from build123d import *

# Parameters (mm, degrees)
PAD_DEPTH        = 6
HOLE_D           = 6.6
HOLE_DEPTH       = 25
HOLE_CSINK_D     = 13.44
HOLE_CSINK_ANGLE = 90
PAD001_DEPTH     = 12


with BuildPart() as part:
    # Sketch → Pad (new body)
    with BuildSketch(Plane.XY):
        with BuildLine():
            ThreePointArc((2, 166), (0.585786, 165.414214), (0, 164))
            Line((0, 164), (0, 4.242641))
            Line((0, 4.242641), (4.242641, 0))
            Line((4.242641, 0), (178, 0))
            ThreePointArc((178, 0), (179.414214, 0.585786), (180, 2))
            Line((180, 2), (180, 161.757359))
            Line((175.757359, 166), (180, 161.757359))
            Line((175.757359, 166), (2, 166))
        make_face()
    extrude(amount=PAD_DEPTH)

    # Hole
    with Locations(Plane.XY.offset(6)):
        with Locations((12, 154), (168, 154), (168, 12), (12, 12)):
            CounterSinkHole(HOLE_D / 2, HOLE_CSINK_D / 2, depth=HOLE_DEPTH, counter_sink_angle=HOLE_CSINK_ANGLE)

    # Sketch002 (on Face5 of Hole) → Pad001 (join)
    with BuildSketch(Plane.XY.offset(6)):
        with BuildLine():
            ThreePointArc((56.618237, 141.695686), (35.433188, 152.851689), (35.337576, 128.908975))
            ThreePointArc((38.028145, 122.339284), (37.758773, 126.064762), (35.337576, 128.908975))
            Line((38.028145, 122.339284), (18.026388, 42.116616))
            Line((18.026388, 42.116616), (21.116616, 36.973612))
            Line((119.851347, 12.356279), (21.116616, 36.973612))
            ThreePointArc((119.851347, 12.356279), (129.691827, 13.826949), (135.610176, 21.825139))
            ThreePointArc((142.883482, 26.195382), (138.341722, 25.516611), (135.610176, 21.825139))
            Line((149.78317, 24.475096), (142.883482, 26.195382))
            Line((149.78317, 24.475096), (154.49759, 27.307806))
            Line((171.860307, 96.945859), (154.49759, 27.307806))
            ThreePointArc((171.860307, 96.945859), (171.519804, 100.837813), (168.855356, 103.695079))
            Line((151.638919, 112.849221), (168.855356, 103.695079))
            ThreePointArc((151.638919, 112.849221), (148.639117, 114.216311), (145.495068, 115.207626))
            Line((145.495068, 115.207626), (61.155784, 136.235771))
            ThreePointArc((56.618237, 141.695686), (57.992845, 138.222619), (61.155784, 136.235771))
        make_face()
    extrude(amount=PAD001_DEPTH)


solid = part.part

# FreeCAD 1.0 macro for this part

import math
import FreeCAD as App
import Part
import Sketcher

V = App.Vector
Q = App.Units.Quantity

doc = App.newDocument("Part")
body = doc.addObject("PartDesign::Body", "Body")

# Sketch on XY plane
sketch1 = doc.addObject("Sketcher::SketchObject", "Sketch")
body.addObject(sketch1)
sketch1.AttachmentSupport = (doc.XY_Plane, [""])
sketch1.MapMode = "FlatFace"
sketch1.addGeometry([
    Part.ArcOfCircle(Part.Circle(V(1.999999, 164.000001, 0), V(0, 0, 1), 1.999999), math.radians(89.999957), math.radians(180.000043)),  # 0
    Part.LineSegment(V(0, 164, 0), V(0, 4.242641, 0)),  # 1
    Part.LineSegment(V(0, 4.242641, 0), V(4.242641, 0, 0)),  # 2
    Part.LineSegment(V(4.242641, 0, 0), V(178, 0, 0)),  # 3
    Part.ArcOfCircle(Part.Circle(V(178.000001, 1.999999, 0), V(0, 0, 1), 1.999999), math.radians(-90.000043), math.radians(0.000043)),  # 4
    Part.LineSegment(V(180, 2, 0), V(180, 161.757359, 0)),  # 5
    Part.LineSegment(V(180, 161.757359, 0), V(175.757359, 166, 0)),  # 6
    Part.LineSegment(V(175.757359, 166, 0), V(2, 166, 0)),  # 7
], False)
sketch1.addConstraint([
    Sketcher.Constraint("Tangent", 0, 2, 1, 1),
    Sketcher.Constraint("Coincident", 1, 2, 2, 1),
    Sketcher.Constraint("Coincident", 2, 2, 3, 1),
    Sketcher.Constraint("Tangent", 3, 2, 4, 1),
    Sketcher.Constraint("Tangent", 4, 2, 5, 1),
    Sketcher.Constraint("Coincident", 5, 2, 6, 1),
    Sketcher.Constraint("Coincident", 6, 2, 7, 1),
    Sketcher.Constraint("Tangent", 7, 2, 0, 1),
    Sketcher.Constraint("Vertical", 1),
    Sketcher.Constraint("Horizontal", 3),
    Sketcher.Constraint("Vertical", 5),
    Sketcher.Constraint("Horizontal", 7),
    Sketcher.Constraint("Equal", 0, 4),
    Sketcher.Constraint("PointOnObject", 0, 2, -2),
    Sketcher.Constraint("PointOnObject", 2, 2, -1),
    Sketcher.Constraint("Parallel", 2, 6),
    Sketcher.Constraint("Equal", 3, 7),
    Sketcher.Constraint("Radius", 0, 1.999999),
    Sketcher.Constraint("Angle", 2, Q("-45 deg")),
    Sketcher.Constraint("Distance", 2, 6.0),
    Sketcher.Constraint("DistanceY", -1, 1, 0, 3, 164.000001),
    Sketcher.Constraint("DistanceX", -1, 1, 4, 3, 178.000001),
])
pad1 = doc.addObject("PartDesign::Pad", "Pad")
body.addObject(pad1)
pad1.Profile = sketch1
pad1.Length = 6

# Sketch on XY plane
sketch2 = doc.addObject("Sketcher::SketchObject", "Sketch001")
body.addObject(sketch2)
sketch2.AttachmentSupport = (doc.XY_Plane, [""])
sketch2.MapMode = "FlatFace"
sketch2.AttachmentOffset = App.Placement(V(0, 0, 6), App.Rotation())
sketch2.addGeometry([
    Part.Circle(V(12, 154, 0), V(0, 0, 1), 3.3),
    Part.Circle(V(168, 154, 0), V(0, 0, 1), 3.3),
    Part.Circle(V(168, 12, 0), V(0, 0, 1), 3.3),
    Part.Circle(V(12, 12, 0), V(0, 0, 1), 3.3),
], False)
sketch2.addConstraint([
    Sketcher.Constraint("Equal", 0, 1),
    Sketcher.Constraint("Equal", 1, 2),
    Sketcher.Constraint("Equal", 2, 3),
    Sketcher.Constraint("Horizontal", 0, 3, 1, 3),
    Sketcher.Constraint("Horizontal", 2, 3, 3, 3),
    Sketcher.Constraint("Vertical", 1, 3, 2, 3),
    Sketcher.Constraint("Vertical", 0, 3, 3, 3),
    Sketcher.Constraint("Diameter", 0, 6.6),
    Sketcher.Constraint("DistanceX", -1, 1, 0, 3, 12.0),
    Sketcher.Constraint("DistanceY", -1, 1, 0, 3, 154.0),
    Sketcher.Constraint("DistanceX", -1, 1, 1, 3, 168.0),
    Sketcher.Constraint("DistanceY", -1, 1, 2, 3, 12.0),
])
doc.recompute()
hole = doc.addObject("PartDesign::Hole", "Hole")
body.addObject(hole)
hole.Profile = sketch2
hole.ThreadType = "None"
hole.Diameter = 6.6
hole.DepthType = "Dimension"
hole.Depth = 25
hole.DrillPoint = "Flat"
hole.HoleCutType = "Countersink"
hole.HoleCutDiameter = 13.44
hole.HoleCutCountersinkAngle = 90

# Sketch on XY plane
sketch3 = doc.addObject("Sketcher::SketchObject", "Sketch002")
body.addObject(sketch3)
sketch3.AttachmentSupport = (doc.XY_Plane, [""])
sketch3.MapMode = "FlatFace"
sketch3.AttachmentOffset = App.Placement(V(0, 0, 6), App.Rotation())
sketch3.addGeometry([
    Part.ArcOfCircle(Part.Circle(V(42.643721, 140.851347, 0), V(0, 0, 1), 14), math.radians(3.457603), math.radians(238.542396)),  # 0
    Part.ArcOfCircle(Part.Circle(V(32.206372, 123.790816, 0), V(0, 0, 1), 5.999999), math.radians(-14.000009), math.radians(58.542399)),  # 1
    Part.LineSegment(V(38.028145, 122.339284, 0), V(18.026388, 42.116616, 0)),  # 2
    Part.LineSegment(V(18.026388, 42.116616, 0), V(21.116616, 36.973612, 0)),  # 3
    Part.LineSegment(V(21.116616, 36.973612, 0), V(119.851347, 12.356279, 0)),  # 4
    Part.ArcOfCircle(Part.Circle(V(122.996331, 24.970124, 0), V(0, 0, 1), 13), math.radians(-103.999998), math.radians(-14)),  # 5
    Part.ArcOfCircle(Part.Circle(V(141.431951, 20.373606, 0), V(0, 0, 1), 6.000001), math.radians(76.000008), math.radians(165.99999)),  # 6
    Part.LineSegment(V(142.883482, 26.195382, 0), V(149.78317, 24.475096, 0)),  # 7
    Part.LineSegment(V(149.78317, 24.475096, 0), V(154.49759, 27.307806, 0)),  # 8
    Part.LineSegment(V(154.49759, 27.307806, 0), V(171.860307, 96.945859, 0)),  # 9
    Part.ArcOfCircle(Part.Circle(V(166.038532, 98.39739, 0), V(0, 0, 1), 6), math.radians(-13.999997), math.radians(62.000063)),  # 10
    Part.LineSegment(V(168.855356, 103.695079, 0), V(151.638919, 112.849221, 0)),  # 11
    Part.ArcOfCircle(Part.Circle(V(138.963188, 89.009672, 0), V(0, 0, 1), 26.999967), math.radians(61.999967), math.radians(76.000008)),  # 12
    Part.LineSegment(V(145.495068, 115.207626, 0), V(61.155784, 136.235771, 0)),  # 13
    Part.ArcOfCircle(Part.Circle(V(62.607317, 142.057547, 0), V(0, 0, 1), 6.000001), math.radians(-176.542389), math.radians(-104.000009)),  # 14
], False)
sketch3.addConstraint([
    Sketcher.Constraint("Coincident", 0, 2, 1, 2),
    Sketcher.Constraint("Coincident", 1, 1, 2, 1),
    Sketcher.Constraint("Coincident", 2, 2, 3, 1),
    Sketcher.Constraint("Coincident", 3, 2, 4, 1),
    Sketcher.Constraint("Coincident", 4, 2, 5, 1),
    Sketcher.Constraint("Coincident", 5, 2, 6, 2),
    Sketcher.Constraint("Coincident", 6, 1, 7, 1),
    Sketcher.Constraint("Coincident", 7, 2, 8, 1),
    Sketcher.Constraint("Coincident", 8, 2, 9, 1),
    Sketcher.Constraint("Coincident", 9, 2, 10, 1),
    Sketcher.Constraint("Coincident", 10, 2, 11, 1),
    Sketcher.Constraint("Coincident", 11, 2, 12, 1),
    Sketcher.Constraint("Coincident", 12, 2, 13, 1),
    Sketcher.Constraint("Coincident", 13, 2, 14, 2),
    Sketcher.Constraint("Coincident", 14, 1, 0, 1),
    Sketcher.Constraint("Radius", 0, 14.0),
    Sketcher.Constraint("Radius", 1, 5.999999),
    Sketcher.Constraint("Radius", 5, 13.0),
    Sketcher.Constraint("Radius", 6, 6.000001),
    Sketcher.Constraint("Radius", 10, 6.0),
    Sketcher.Constraint("Radius", 14, 6.000001),
    Sketcher.Constraint("Distance", 3, 6.0),
    Sketcher.Constraint("Distance", 8, 5.5),
    Sketcher.Constraint("Radius", 12, 26.999967),
    Sketcher.Constraint("DistanceX", 5, 3, 10, 3, 43.042201),
    Sketcher.Constraint("DistanceY", 0, 3, 14, 3, 1.2062),
    Sketcher.Constraint("DistanceY", 2, 2, 1, 3, 81.6742),
    Sketcher.Constraint("DistanceY", 6, 3, 8, 2, 6.9342),
    Sketcher.Constraint("Distance", 4, 101.757359),
    Sketcher.Constraint("Distance", 11, 19.498821),
    Sketcher.Constraint("DistanceX", -1, 1, 0, 3, 42.643721),
    Sketcher.Constraint("DistanceX", -1, 1, 1, 3, 32.206372),
    Sketcher.Constraint("DistanceX", -1, 1, 5, 3, 122.996331),
    Sketcher.Constraint("DistanceX", -1, 1, 6, 3, 141.431951),
    Sketcher.Constraint("DistanceY", -1, 1, 10, 3, 98.39739),
    Sketcher.Constraint("DistanceX", -1, 1, 12, 3, 138.963188),
    Sketcher.Constraint("DistanceX", -1, 1, 2, 2, 18.026388),
    Sketcher.Constraint("DistanceY", -1, 1, 4, 2, 12.356279),
    Sketcher.Constraint("DistanceY", -1, 1, 5, 2, 21.825139),
    Sketcher.Constraint("DistanceX", -1, 1, 6, 1, 142.883482),
    Sketcher.Constraint("DistanceY", -1, 1, 6, 1, 26.195382),
    Sketcher.Constraint("DistanceX", -1, 1, 7, 2, 149.78317),
    Sketcher.Constraint("DistanceX", -1, 1, 8, 2, 154.49759),
    Sketcher.Constraint("DistanceY", -1, 1, 9, 2, 96.945859),
    Sketcher.Constraint("DistanceY", -1, 1, 10, 2, 103.695079),
    Sketcher.Constraint("DistanceX", -1, 1, 11, 2, 151.638919),
    Sketcher.Constraint("DistanceX", -1, 1, 12, 2, 145.495068),
    Sketcher.Constraint("DistanceY", -1, 1, 13, 2, 136.235771),
    Sketcher.Constraint("DistanceY", 6, 3, 1, 3, 103.41721),
    Sketcher.Constraint("DistanceY", 1, 3, 0, 2, 5.118159),
    Sketcher.Constraint("DistanceX", 0, 2, 1, 1, 2.690569),
    Sketcher.Constraint("DistanceX", 14, 1, 14, 3, 5.98908),
])
pad2 = doc.addObject("PartDesign::Pad", "Pad001")
body.addObject(pad2)
pad2.Profile = sketch3
pad2.Length = 12

doc.recompute()
